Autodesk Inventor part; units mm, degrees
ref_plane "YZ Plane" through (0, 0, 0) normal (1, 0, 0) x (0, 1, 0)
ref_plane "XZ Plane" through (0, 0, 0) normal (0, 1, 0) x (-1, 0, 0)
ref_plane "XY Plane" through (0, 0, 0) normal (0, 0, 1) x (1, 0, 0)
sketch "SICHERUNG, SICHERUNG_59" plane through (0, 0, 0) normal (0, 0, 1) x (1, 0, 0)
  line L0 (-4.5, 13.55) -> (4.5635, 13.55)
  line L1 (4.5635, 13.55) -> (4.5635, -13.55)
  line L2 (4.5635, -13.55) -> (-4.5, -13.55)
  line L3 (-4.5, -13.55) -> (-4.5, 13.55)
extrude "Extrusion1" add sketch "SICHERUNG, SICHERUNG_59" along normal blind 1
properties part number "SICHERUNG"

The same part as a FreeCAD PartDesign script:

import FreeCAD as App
import Part
import Sketcher
from FreeCAD import Vector
Q = App.Units.Quantity


def add_polygon(sketch, points):
    """Adds a closed chain of lines whose ends are joined by coincident constraints."""
    first, n = sketch.GeometryCount, len(points)
    for a, b in zip(points, points[1:] + points[:1]):
        sketch.addGeometry(Part.LineSegment(App.Vector(*a, 0), App.Vector(*b, 0)), False)
    for i in range(n):
        sketch.addConstraint(Sketcher.Constraint("Coincident", first + i, 2, first + (i + 1) % n, 1))

doc = App.newDocument("Part")
body = doc.addObject("PartDesign::Body", "Body")

# Sketch on XY plane
sketch1 = doc.addObject("Sketcher::SketchObject", "Sketch")
body.addObject(sketch1)
sketch1.AttachmentSupport = (doc.XY_Plane, [""])
sketch1.MapMode = "FlatFace"
add_polygon(sketch1, [(4.5635, 13.55), (-4.5, 13.55), (-4.5, -13.55), (4.5635, -13.55)])  # lines 0-3
sketch1.addConstraint([
    Sketcher.Constraint("Horizontal", 0),
    Sketcher.Constraint("Vertical", 1),
    Sketcher.Constraint("Horizontal", 2),
    Sketcher.Constraint("Vertical", 3),
    Sketcher.Constraint("DistanceY", 1, 2, 1, 1, Q("27.1 mm")),
    Sketcher.Constraint("DistanceX", 0, 2, -1, 1, Q("4.5 mm")),
    Sketcher.Constraint("DistanceY", -1, 1, 0, 2, Q("13.55 mm")),
    Sketcher.Constraint("DistanceX", 0, 2, 0, 1, Q("9.0635 mm")),
])
pad1 = doc.addObject("PartDesign::Pad", "Pad")
body.addObject(pad1)
pad1.Profile = sketch1
pad1.Length = 1

doc.recompute()
